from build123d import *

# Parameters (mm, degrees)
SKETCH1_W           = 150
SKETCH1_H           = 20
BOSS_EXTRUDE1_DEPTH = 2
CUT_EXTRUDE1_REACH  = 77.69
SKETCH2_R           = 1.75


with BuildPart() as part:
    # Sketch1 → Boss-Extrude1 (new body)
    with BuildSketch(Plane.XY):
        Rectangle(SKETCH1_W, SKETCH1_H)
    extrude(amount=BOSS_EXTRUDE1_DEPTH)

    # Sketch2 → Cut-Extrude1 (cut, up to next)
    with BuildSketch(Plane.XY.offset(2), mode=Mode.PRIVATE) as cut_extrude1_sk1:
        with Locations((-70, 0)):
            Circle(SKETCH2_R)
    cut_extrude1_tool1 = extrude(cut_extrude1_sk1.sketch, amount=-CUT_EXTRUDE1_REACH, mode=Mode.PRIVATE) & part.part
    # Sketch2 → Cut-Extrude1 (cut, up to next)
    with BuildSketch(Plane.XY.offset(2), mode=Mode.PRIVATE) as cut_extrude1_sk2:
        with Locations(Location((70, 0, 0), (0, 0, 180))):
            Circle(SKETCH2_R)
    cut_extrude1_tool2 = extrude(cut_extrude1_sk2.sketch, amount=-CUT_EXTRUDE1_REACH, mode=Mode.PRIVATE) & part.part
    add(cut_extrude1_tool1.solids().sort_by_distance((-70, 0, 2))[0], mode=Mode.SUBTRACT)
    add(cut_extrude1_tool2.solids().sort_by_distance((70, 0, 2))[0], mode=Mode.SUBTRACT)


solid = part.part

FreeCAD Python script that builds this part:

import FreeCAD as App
import Part
import Sketcher

doc = App.newDocument("Part")
body = doc.addObject("PartDesign::Body", "Body")

sketch1 = body.newObject("Sketcher::SketchObject", "Sketch")
sketch1.AttachmentSupport = (doc.getObject("XY_Plane"), [""])
sketch1.MapMode = "FlatFace"
sketch1.addGeometry(Part.LineSegment(App.Vector(-75, 10, 0), App.Vector(-75, -10, 0)), False)
sketch1.addGeometry(Part.LineSegment(App.Vector(-75, -10, 0), App.Vector(75, -10, 0)), False)
sketch1.addGeometry(Part.LineSegment(App.Vector(75, -10, 0), App.Vector(75, 10, 0)), False)
sketch1.addGeometry(Part.LineSegment(App.Vector(75, 10, 0), App.Vector(-75, 10, 0)), False)
sketch1.addConstraint(Sketcher.Constraint("Coincident", 0, 2, 1, 1))
sketch1.addConstraint(Sketcher.Constraint("Coincident", 1, 2, 2, 1))
sketch1.addConstraint(Sketcher.Constraint("Coincident", 2, 2, 3, 1))
sketch1.addConstraint(Sketcher.Constraint("Coincident", 3, 2, 0, 1))
sketch1.addConstraint(Sketcher.Constraint("Vertical", 0))
sketch1.addConstraint(Sketcher.Constraint("Horizontal", 1))
sketch1.addConstraint(Sketcher.Constraint("Vertical", 2))
sketch1.addConstraint(Sketcher.Constraint("Horizontal", 3))
sketch1.addConstraint(Sketcher.Constraint("Symmetric", 0, 2, 2, 2, -1, 1))
sketch1.addConstraint(Sketcher.Constraint("DistanceX", 1, 1, 1, 2, 150.0))
sketch1.addConstraint(Sketcher.Constraint("DistanceY", 0, 2, 0, 1, 20.0))
pad1 = body.newObject("PartDesign::Pad", "Pad")
pad1.Profile = sketch1
pad1.Length = 2

sketch2 = body.newObject("Sketcher::SketchObject", "Sketch001")
sketch2.AttachmentSupport = (doc.getObject("XY_Plane"), [""])
sketch2.MapMode = "FlatFace"
sketch2.AttachmentOffset = App.Placement(App.Vector(0, 0, 2), App.Rotation())
sketch2.addGeometry(Part.Circle(App.Vector(-70, 0, 0), App.Vector(0, 0, 1), 1.8), False)
sketch2.addConstraint(Sketcher.Constraint("PointOnObject", 0, 3, -1))
sketch2.addConstraint(Sketcher.Constraint("Diameter", 0, 3.5))
sketch2.addConstraint(Sketcher.Constraint("DistanceX", 0, 3, -1, 1, 70.0))
pocket1 = body.newObject("PartDesign::Pocket", "Pocket")
pocket1.Profile = sketch2
pocket1.Type = "UpToFirst"

sketch3 = body.newObject("Sketcher::SketchObject", "Sketch002")
sketch3.AttachmentSupport = (doc.getObject("XY_Plane"), [""])
sketch3.MapMode = "FlatFace"
sketch3.AttachmentOffset = App.Placement(App.Vector(0, 0, 2), App.Rotation())
sketch3.addGeometry(Part.Circle(App.Vector(70, 0, 0), App.Vector(0, 0, 1), 1.8), False)
sketch3.addConstraint(Sketcher.Constraint("PointOnObject", 0, 3, -1))
sketch3.addConstraint(Sketcher.Constraint("Diameter", 0, 3.5))
sketch3.addConstraint(Sketcher.Constraint("DistanceX", -1, 1, 0, 3, 70.0))
pocket2 = body.newObject("PartDesign::Pocket", "Pocket001")
pocket2.Profile = sketch3
pocket2.Type = "UpToFirst"

doc.recompute()
